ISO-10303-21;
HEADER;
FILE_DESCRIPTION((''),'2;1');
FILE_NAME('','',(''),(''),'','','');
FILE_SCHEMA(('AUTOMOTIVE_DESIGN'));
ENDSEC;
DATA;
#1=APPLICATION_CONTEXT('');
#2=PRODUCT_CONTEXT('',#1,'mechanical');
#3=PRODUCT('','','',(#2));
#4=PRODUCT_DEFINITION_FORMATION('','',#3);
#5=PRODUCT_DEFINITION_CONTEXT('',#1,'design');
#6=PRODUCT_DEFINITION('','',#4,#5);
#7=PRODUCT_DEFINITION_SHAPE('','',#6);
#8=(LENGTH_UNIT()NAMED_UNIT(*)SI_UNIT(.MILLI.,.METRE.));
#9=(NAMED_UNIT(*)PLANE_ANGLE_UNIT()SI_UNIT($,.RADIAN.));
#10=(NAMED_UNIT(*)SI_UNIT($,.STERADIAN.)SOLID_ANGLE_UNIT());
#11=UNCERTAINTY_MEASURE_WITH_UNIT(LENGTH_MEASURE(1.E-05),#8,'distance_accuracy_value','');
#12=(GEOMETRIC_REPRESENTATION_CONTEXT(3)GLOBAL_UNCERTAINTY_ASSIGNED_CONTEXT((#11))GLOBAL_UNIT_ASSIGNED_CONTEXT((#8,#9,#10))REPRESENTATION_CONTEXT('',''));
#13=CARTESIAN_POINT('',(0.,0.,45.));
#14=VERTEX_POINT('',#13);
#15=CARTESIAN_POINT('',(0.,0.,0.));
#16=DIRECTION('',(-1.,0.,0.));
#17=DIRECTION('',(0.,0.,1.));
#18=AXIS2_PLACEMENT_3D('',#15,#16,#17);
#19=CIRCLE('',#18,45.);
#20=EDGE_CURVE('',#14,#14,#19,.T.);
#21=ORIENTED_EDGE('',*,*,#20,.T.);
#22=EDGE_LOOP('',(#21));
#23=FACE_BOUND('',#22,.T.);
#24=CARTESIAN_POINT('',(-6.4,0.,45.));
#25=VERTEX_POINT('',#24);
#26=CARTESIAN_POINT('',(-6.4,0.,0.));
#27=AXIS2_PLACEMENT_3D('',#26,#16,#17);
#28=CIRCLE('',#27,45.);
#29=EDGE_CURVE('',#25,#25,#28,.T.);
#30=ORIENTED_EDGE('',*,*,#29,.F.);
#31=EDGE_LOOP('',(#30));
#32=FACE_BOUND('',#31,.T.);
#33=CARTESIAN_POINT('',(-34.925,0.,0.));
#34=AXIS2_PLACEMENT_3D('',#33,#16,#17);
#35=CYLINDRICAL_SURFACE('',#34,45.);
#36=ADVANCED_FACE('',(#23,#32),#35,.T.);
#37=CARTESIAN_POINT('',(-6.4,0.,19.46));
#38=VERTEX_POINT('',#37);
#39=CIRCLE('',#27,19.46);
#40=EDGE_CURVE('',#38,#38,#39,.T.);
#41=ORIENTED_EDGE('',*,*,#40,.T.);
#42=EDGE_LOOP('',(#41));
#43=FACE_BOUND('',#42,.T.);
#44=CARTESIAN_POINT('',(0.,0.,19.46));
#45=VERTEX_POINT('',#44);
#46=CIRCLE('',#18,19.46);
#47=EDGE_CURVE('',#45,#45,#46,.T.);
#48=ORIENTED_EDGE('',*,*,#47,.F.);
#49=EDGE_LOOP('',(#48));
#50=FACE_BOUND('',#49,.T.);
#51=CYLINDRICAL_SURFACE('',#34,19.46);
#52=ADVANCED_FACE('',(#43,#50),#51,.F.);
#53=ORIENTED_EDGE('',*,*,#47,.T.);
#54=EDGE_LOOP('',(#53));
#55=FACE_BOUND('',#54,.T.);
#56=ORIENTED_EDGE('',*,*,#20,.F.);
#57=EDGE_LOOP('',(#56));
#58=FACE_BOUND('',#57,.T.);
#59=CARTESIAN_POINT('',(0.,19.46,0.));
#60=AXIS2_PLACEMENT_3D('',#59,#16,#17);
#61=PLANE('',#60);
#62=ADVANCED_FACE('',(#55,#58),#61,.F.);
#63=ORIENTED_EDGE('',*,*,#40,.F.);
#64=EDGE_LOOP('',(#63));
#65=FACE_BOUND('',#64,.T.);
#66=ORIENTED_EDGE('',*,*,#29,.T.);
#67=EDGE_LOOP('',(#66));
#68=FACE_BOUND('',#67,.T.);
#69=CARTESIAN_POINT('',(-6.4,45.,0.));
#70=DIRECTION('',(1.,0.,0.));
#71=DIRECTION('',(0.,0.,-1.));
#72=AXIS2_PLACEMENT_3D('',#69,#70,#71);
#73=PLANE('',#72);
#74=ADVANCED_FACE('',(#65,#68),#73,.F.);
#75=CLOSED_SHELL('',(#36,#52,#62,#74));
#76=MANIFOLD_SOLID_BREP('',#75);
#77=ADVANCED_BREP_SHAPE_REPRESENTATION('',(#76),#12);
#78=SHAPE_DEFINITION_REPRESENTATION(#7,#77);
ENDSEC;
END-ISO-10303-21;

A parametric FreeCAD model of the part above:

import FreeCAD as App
import Part
import Sketcher
from FreeCAD import Vector
Q = App.Units.Quantity


def add_polygon(sketch, points):
    """Adds a closed chain of lines whose ends are joined by coincident constraints."""
    first, n = sketch.GeometryCount, len(points)
    for a, b in zip(points, points[1:] + points[:1]):
        sketch.addGeometry(Part.LineSegment(App.Vector(*a, 0), App.Vector(*b, 0)), False)
    for i in range(n):
        sketch.addConstraint(Sketcher.Constraint("Coincident", first + i, 2, first + (i + 1) % n, 1))

doc = App.newDocument("Part")
body = doc.addObject("PartDesign::Body", "Body")

sketch1 = body.newObject("Sketcher::SketchObject", "Sketch")
sketch1.AttachmentSupport = (doc.getObject("XY_Plane"), [""])
sketch1.MapMode = "FlatFace"
add_polygon(sketch1, [(-6.4, 45), (-6.4, 19.46), (0, 19.46), (0, 45)])
sketch1.addConstraint(Sketcher.Constraint("Vertical", 0))
sketch1.addConstraint(Sketcher.Constraint("Horizontal", 1))
sketch1.addConstraint(Sketcher.Constraint("Vertical", 2))
sketch1.addConstraint(Sketcher.Constraint("Horizontal", 3))
sketch1.addConstraint(Sketcher.Constraint("PointOnObject", 1, 2, -2))
sketch1.addConstraint(Sketcher.Constraint("DistanceX", 1, 1, 1, 2, Q("6.4 mm")))
sketch1.addConstraint(Sketcher.Constraint("DistanceY", -1, 1, 2, 2, Q("45 mm")))
sketch1.addConstraint(Sketcher.Constraint("DistanceY", 0, 2, 0, 1, Q("25.54 mm")))
revolution = body.newObject("PartDesign::Revolution", "Revolution")
revolution.Profile = sketch1
revolution.ReferenceAxis = (sketch1, ["H_Axis"])
revolution.Angle = 360

doc.recompute()
